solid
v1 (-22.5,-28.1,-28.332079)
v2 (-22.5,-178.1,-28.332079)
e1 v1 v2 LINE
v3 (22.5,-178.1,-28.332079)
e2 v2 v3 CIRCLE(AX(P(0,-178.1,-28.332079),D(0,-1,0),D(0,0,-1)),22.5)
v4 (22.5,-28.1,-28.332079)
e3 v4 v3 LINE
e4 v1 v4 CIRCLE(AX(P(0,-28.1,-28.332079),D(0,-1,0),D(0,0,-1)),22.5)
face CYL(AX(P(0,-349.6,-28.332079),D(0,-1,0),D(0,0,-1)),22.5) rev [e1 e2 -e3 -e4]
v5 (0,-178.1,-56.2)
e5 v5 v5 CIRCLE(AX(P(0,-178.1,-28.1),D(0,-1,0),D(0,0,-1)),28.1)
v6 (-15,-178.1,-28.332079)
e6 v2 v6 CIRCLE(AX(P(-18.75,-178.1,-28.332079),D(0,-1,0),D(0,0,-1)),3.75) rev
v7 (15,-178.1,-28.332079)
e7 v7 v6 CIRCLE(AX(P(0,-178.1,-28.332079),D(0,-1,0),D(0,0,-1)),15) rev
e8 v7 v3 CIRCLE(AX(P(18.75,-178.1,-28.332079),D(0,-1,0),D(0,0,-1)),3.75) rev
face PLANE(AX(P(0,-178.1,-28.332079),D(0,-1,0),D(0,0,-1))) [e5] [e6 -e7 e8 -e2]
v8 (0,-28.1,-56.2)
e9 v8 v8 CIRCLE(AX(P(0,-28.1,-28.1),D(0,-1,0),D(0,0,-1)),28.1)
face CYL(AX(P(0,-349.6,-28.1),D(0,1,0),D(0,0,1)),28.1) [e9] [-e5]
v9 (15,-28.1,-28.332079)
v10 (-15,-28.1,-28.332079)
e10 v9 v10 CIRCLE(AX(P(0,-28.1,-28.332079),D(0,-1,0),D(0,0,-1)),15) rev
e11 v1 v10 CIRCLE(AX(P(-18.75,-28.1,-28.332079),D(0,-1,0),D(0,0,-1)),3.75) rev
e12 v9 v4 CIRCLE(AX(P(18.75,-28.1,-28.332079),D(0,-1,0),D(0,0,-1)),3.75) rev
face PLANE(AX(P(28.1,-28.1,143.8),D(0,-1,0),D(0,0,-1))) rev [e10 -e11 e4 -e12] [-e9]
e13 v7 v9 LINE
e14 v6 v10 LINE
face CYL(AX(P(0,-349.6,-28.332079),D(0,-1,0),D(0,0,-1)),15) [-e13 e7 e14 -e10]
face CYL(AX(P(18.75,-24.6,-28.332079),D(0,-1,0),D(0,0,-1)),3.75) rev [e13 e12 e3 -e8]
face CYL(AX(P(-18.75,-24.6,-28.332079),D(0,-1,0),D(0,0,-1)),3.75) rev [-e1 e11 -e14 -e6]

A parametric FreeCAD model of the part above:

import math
import FreeCAD as App
import Part
import Sketcher
from FreeCAD import Vector


def add_polygon(sketch, points):
    """Adds a closed chain of lines whose ends are joined by coincident constraints."""
    first, n = sketch.GeometryCount, len(points)
    for a, b in zip(points, points[1:] + points[:1]):
        sketch.addGeometry(Part.LineSegment(App.Vector(*a, 0), App.Vector(*b, 0)), False)
    for i in range(n):
        sketch.addConstraint(Sketcher.Constraint("Coincident", first + i, 2, first + (i + 1) % n, 1))

doc = App.newDocument("Part")
body = doc.addObject("PartDesign::Body", "Body")

# Sketch on XY plane
sketch1 = body.newObject("Sketcher::SketchObject", "Sketch")
sketch1.AttachmentSupport = (doc.getObject("XY_Plane"), [""])
sketch1.MapMode = "FlatFace"
sketch1.addGeometry(Part.Circle(Vector(0, 0, 0), Vector(0, 0, 1), 28.1), False)
sketch1.addConstraint([
    Sketcher.Constraint("Coincident", 0, 3, -1, 1),
    Sketcher.Constraint("Diameter", 0, 56.2),
])
pad1 = body.newObject("PartDesign::Pad", "Pad")
pad1.Profile = sketch1
pad1.Length = 61.3

# Sketch on XY plane
sketch2 = body.newObject("Sketcher::SketchObject", "Sketch001")
sketch2.AttachmentSupport = (doc.getObject("XY_Plane"), [""])
sketch2.MapMode = "FlatFace"
sketch2.AttachmentOffset = App.Placement(Vector(0, 0, 61.3), App.Rotation())
sketch2.addGeometry(Part.Circle(Vector(0, -7, 0), Vector(0, 0, 1), 18.6), False)
sketch2.addConstraint([
    Sketcher.Constraint("PointOnObject", 0, 3, -2),
    Sketcher.Constraint("Diameter", 0, 37.2),
    Sketcher.Constraint("DistanceY", 0, 3, -1, 1, 7.0),
])
pocket1 = body.newObject("PartDesign::Pocket", "Pocket")
pocket1.Profile = sketch2
pocket1.Length = 58.8

# Sketch on XY plane
sketch3 = body.newObject("Sketcher::SketchObject", "Sketch002")
sketch3.AttachmentSupport = (doc.getObject("XY_Plane"), [""])
sketch3.MapMode = "FlatFace"
add_polygon(sketch3, [(28.1, 28.1), (28.1, -28.1), (-28.1, -28.1), (-28.1, 28.1)])  # lines 0-3
sketch3.addConstraint([
    Sketcher.Constraint("Vertical", 0),
    Sketcher.Constraint("Horizontal", 1),
    Sketcher.Constraint("Vertical", 2),
    Sketcher.Constraint("Horizontal", 3),
    Sketcher.Constraint("Symmetric", 0, 2, 2, 2, -1, 1),
    Sketcher.Constraint("Equal", 3, 0),
    Sketcher.Constraint("DistanceX", 1, 2, 1, 1, 56.2),
])
pad2 = body.newObject("PartDesign::Pad", "Pad001")
pad2.Profile = sketch3
pad2.Length = 56.2
pad2.Reversed = True

# Sketch on XY plane
sketch4 = body.newObject("Sketcher::SketchObject", "Sketch003")
sketch4.AttachmentSupport = (doc.getObject("XY_Plane"), [""])
sketch4.MapMode = "FlatFace"
sketch4.AttachmentOffset = App.Placement(Vector(0, 0, 2.5), App.Rotation())
sketch4.addGeometry(Part.Circle(Vector(0, -7, 0), Vector(0, 0, 1), 16.1), False)
sketch4.addConstraint([
    Sketcher.Constraint("PointOnObject", 0, 3, -2),
    Sketcher.Constraint("Diameter", 0, 32.2),
    Sketcher.Constraint("DistanceY", 0, 3, -1, 1, 7.0),
])
pocket2 = body.newObject("PartDesign::Pocket", "Pocket001")
pocket2.Profile = sketch4
pocket2.Length = 5

# Sketch on XY plane
sketch5 = body.newObject("Sketcher::SketchObject", "Sketch004")
sketch5.AttachmentSupport = (doc.getObject("XY_Plane"), [""])
sketch5.MapMode = "FlatFace"
sketch5.AttachmentOffset = App.Placement(Vector(0, 0, -56.2), App.Rotation())
add_polygon(sketch5, [(24.898696, 24.889628), (24.898696, -24.889628), (-24.898696, -24.889628), (-24.898696, 24.889628)])  # lines 0-3
sketch5.addConstraint([
    Sketcher.Constraint("Vertical", 0),
    Sketcher.Constraint("Horizontal", 1),
    Sketcher.Constraint("Vertical", 2),
    Sketcher.Constraint("Horizontal", 3),
    Sketcher.Constraint("Symmetric", 0, 2, 2, 2, -1, 1),
    Sketcher.Constraint("DistanceX", 1, 2, 1, 1, 49.797391),
    Sketcher.Constraint("DistanceY", 0, 2, 0, 1, 49.779255),
])
pocket3 = body.newObject("PartDesign::Pocket", "Pocket002")
pocket3.Profile = sketch5
pocket3.Length = 53.7
pocket3.Reversed = True

# Sketch on XZ plane
sketch6 = body.newObject("Sketcher::SketchObject", "Sketch005")
sketch6.AttachmentSupport = (doc.getObject("XZ_Plane"), [""])
sketch6.MapMode = "FlatFace"
sketch6.AttachmentOffset = App.Placement(Vector(0, 0, 28.1), App.Rotation())
sketch6.addGeometry(Part.Circle(Vector(0, -28.1, 0), Vector(0, 0, 1), 28.1), False)
sketch6.addConstraint([
    Sketcher.Constraint("PointOnObject", 0, 3, -2),
    Sketcher.Constraint("Diameter", 0, 56.2),
    Sketcher.Constraint("DistanceY", 0, 3, -1, 1, 28.1),
])
pad3 = body.newObject("PartDesign::Pad", "Pad002")
pad3.Profile = sketch6
pad3.Length = 321.5

# Sketch on XZ plane
sketch7 = body.newObject("Sketcher::SketchObject", "Sketch006")
sketch7.AttachmentSupport = (doc.getObject("XZ_Plane"), [""])
sketch7.MapMode = "FlatFace"
sketch7.AttachmentOffset = App.Placement(Vector(0, 0, 349.6), App.Rotation())
sketch7.addGeometry([
    Part.LineSegment(Vector(1.658312, -25.832079, 0), Vector(-1.658312, -25.832079, 0)),
    Part.ArcOfCircle(Part.Circle(Vector(0, -28.332079, 0), Vector(0, 0, 1), 3), math.radians(123.55731), math.radians(236.44269)),
    Part.LineSegment(Vector(-1.658312, -30.832079, 0), Vector(1.658312, -30.832079, 0)),
    Part.ArcOfCircle(Part.Circle(Vector(0, -28.332079, 0), Vector(0, 0, 1), 3), math.radians(-56.44269), math.radians(56.44269)),
], False)
sketch7.addConstraint([
    Sketcher.Constraint("Coincident", 0, 2, 1, 1),
    Sketcher.Constraint("Coincident", 1, 2, 2, 1),
    Sketcher.Constraint("Coincident", 2, 2, 3, 1),
    Sketcher.Constraint("Coincident", 3, 2, 0, 1),
    Sketcher.Constraint("Horizontal", 0),
    Sketcher.Constraint("Horizontal", 2),
    Sketcher.Constraint("Coincident", 3, 3, 1, 3),
    Sketcher.Constraint("Equal", 1, 3),
    Sketcher.Constraint("PointOnObject", 1, 3, -2),
    Sketcher.Constraint("Vertical", 0, 2, 1, 2),
    Sketcher.Constraint("Radius", 1, 3.0),
    Sketcher.Constraint("DistanceY", 1, 2, 0, 2, 5.0),
    Sketcher.Constraint("DistanceY", 1, 3, -1, 1, 28.332079),
])
pocket4 = body.newObject("PartDesign::Pocket", "Pocket003")
pocket4.Profile = sketch7
pocket4.Length = 10

# Sketch on XZ plane
sketch8 = body.newObject("Sketcher::SketchObject", "Sketch007")
sketch8.AttachmentSupport = (doc.getObject("XZ_Plane"), [""])
sketch8.MapMode = "FlatFace"
sketch8.AttachmentOffset = App.Placement(Vector(0, 0, 349.6), App.Rotation())
sketch8.addGeometry(Part.Circle(Vector(0, -28.332079, 0), Vector(0, 0, 1), 3), False)
sketch8.addConstraint([
    Sketcher.Constraint("PointOnObject", 0, 3, -2),
    Sketcher.Constraint("Diameter", 0, 6.0),
    Sketcher.Constraint("DistanceY", 0, 3, -1, 1, 28.332079),
])
pocket5 = body.newObject("PartDesign::Pocket", "Pocket004")
pocket5.Profile = sketch8
pocket5.Length = 1

# Sketch on XZ plane
sketch9 = body.newObject("Sketcher::SketchObject", "Sketch008")
sketch9.AttachmentSupport = (doc.getObject("XZ_Plane"), [""])
sketch9.MapMode = "FlatFace"
sketch9.AttachmentOffset = App.Placement(Vector(0, 0, 349.6), App.Rotation())
sketch9.addGeometry(Part.Circle(Vector(0, -28.332079, 0), Vector(0, 0, 1), 6.025), False)
sketch9.addConstraint([
    Sketcher.Constraint("PointOnObject", 0, 3, -2),
    Sketcher.Constraint("Diameter", 0, 12.05),
    Sketcher.Constraint("DistanceY", 0, 3, -1, 1, 28.332079),
])
pocket6 = body.newObject("PartDesign::Pocket", "Pocket005")
pocket6.Profile = sketch9
pocket6.Length = 0.1

# Sketch on XY plane
sketch10 = body.newObject("Sketcher::SketchObject", "Sketch009")
sketch10.AttachmentSupport = (doc.getObject("XY_Plane"), [""])
sketch10.MapMode = "FlatFace"
sketch10.AttachmentOffset = App.Placement(Vector(0, 0, -28.332079), App.Rotation())
add_polygon(sketch10, [(-22.5, -349.6), (-15, -349.6), (-15, -20), (-22.5, -20)])  # lines 0-3
sketch10.addConstraint([
    Sketcher.Constraint("Horizontal", 0),
    Sketcher.Constraint("Vertical", 1),
    Sketcher.Constraint("Horizontal", 2),
    Sketcher.Constraint("Vertical", 3),
    Sketcher.Constraint("DistanceX", 0, 1, 0, 2, 7.5),
    Sketcher.Constraint("DistanceY", 1, 1, 1, 2, 329.6),
    Sketcher.Constraint("DistanceX", 0, 2, -1, 1, 15.0),
    Sketcher.Constraint("DistanceY", 1, 2, -1, 1, 20.0),
])

# Sketch on XZ plane
sketch11 = body.newObject("Sketcher::SketchObject", "Sketch010")
sketch11.AttachmentSupport = (doc.getObject("XZ_Plane"), [""])
sketch11.MapMode = "FlatFace"
sketch11.AttachmentOffset = App.Placement(Vector(0, 0, 349.6), App.Rotation())
sketch11.addGeometry(Part.ArcOfCircle(Part.Circle(Vector(0, -28.332079, 0), Vector(0, 0, 1), 15), math.radians(180), math.radians(360)), False)
sketch11.addConstraint([
    Sketcher.Constraint("Symmetric", 0, 1, 0, 2, -2),
    Sketcher.Constraint("Radius", 0, 15.0),
    Sketcher.Constraint("DistanceY", 0, 3, -1, 1, 28.332079),
    Sketcher.Constraint("DistanceY", 0, 1, -1, 1, 28.332079),
])
doc.recompute()

subtractivepipe = body.newObject("PartDesign::SubtractivePipe", "SubtractivePipe")
subtractivepipe.Profile = sketch10
subtractivepipe.Spine = (sketch11, ["Edge1"])

# Sketch on XY plane
sketch12 = body.newObject("Sketcher::SketchObject", "Sketch011")
sketch12.AttachmentSupport = (doc.getObject("XY_Plane"), [""])
sketch12.MapMode = "FlatFace"
sketch12.AttachmentOffset = App.Placement(Vector(0, 0, 61.3), App.Rotation())
sketch12.addGeometry(Part.Circle(Vector(0, 18.75, 0), Vector(0, 0, 1), 3.75), False)
sketch12.addConstraint([
    Sketcher.Constraint("PointOnObject", 0, 3, -2),
    Sketcher.Constraint("Diameter", 0, 7.5),
    Sketcher.Constraint("DistanceY", -1, 1, 0, 3, 18.75),
])
pocket7 = body.newObject("PartDesign::Pocket", "Pocket006")
pocket7.Profile = sketch12
pocket7.Length = 100

# Sketch on XZ plane
sketch13 = body.newObject("Sketcher::SketchObject", "Sketch012")
sketch13.AttachmentSupport = (doc.getObject("XZ_Plane"), [""])
sketch13.MapMode = "FlatFace"
sketch13.AttachmentOffset = App.Placement(Vector(0, 0, 349.6), App.Rotation())
sketch13.addGeometry([
    Part.Circle(Vector(18.75, -28.332079, 0), Vector(0, 0, 1), 3.75),
    Part.Circle(Vector(-18.75, -28.332079, 0), Vector(0, 0, 1), 3.75),
], False)
sketch13.addConstraint([
    Sketcher.Constraint("Equal", 0, 1),
    Sketcher.Constraint("Symmetric", 0, 3, 1, 3, -2),
    Sketcher.Constraint("Diameter", 0, 7.5),
    Sketcher.Constraint("DistanceX", 1, 3, 0, 3, 37.5),
    Sketcher.Constraint("DistanceY", 0, 3, -1, 1, 28.332079),
])
pocket8 = body.newObject("PartDesign::Pocket", "Pocket007")
pocket8.Profile = sketch13
pocket8.Length = 325

# Sketch on XY plane
sketch14 = body.newObject("Sketcher::SketchObject", "Sketch013")
sketch14.AttachmentSupport = (doc.getObject("XY_Plane"), [""])
sketch14.MapMode = "FlatFace"
sketch14.AttachmentOffset = App.Placement(Vector(0, 0, -56.2), App.Rotation())
add_polygon(sketch14, [(28.1, 28.1), (28.1, -28.1), (-28.1, -28.1), (-28.1, 28.1)])  # lines 0-3
sketch14.addConstraint([
    Sketcher.Constraint("Vertical", 0),
    Sketcher.Constraint("Horizontal", 1),
    Sketcher.Constraint("Vertical", 2),
    Sketcher.Constraint("Horizontal", 3),
    Sketcher.Constraint("Symmetric", 0, 2, 2, 2, -1, 1),
    Sketcher.Constraint("Equal", 3, 0),
    Sketcher.Constraint("DistanceX", 1, 2, 1, 1, 56.2),
])
pocket9 = body.newObject("PartDesign::Pocket", "Pocket008")
pocket9.Profile = sketch14
pocket9.Length = 200
pocket9.Reversed = True

# Sketch on XZ plane
sketch15 = body.newObject("Sketcher::SketchObject", "Sketch014")
sketch15.AttachmentSupport = (doc.getObject("XZ_Plane"), [""])
sketch15.MapMode = "FlatFace"
sketch15.AttachmentOffset = App.Placement(Vector(0, 0, 349.6), App.Rotation())
sketch15.addGeometry(Part.Circle(Vector(0, -28.332079, 0), Vector(0, 0, 1), 28.332079), False)
sketch15.addConstraint([
    Sketcher.Constraint("PointOnObject", 0, 3, -2),
    Sketcher.Constraint("Diameter", 0, 56.664158),
    Sketcher.Constraint("DistanceY", 0, 3, -1, 1, 28.332079),
])
pocket10 = body.newObject("PartDesign::Pocket", "Pocket009")
pocket10.Profile = sketch15
pocket10.Length = 171.5

doc.recompute()
